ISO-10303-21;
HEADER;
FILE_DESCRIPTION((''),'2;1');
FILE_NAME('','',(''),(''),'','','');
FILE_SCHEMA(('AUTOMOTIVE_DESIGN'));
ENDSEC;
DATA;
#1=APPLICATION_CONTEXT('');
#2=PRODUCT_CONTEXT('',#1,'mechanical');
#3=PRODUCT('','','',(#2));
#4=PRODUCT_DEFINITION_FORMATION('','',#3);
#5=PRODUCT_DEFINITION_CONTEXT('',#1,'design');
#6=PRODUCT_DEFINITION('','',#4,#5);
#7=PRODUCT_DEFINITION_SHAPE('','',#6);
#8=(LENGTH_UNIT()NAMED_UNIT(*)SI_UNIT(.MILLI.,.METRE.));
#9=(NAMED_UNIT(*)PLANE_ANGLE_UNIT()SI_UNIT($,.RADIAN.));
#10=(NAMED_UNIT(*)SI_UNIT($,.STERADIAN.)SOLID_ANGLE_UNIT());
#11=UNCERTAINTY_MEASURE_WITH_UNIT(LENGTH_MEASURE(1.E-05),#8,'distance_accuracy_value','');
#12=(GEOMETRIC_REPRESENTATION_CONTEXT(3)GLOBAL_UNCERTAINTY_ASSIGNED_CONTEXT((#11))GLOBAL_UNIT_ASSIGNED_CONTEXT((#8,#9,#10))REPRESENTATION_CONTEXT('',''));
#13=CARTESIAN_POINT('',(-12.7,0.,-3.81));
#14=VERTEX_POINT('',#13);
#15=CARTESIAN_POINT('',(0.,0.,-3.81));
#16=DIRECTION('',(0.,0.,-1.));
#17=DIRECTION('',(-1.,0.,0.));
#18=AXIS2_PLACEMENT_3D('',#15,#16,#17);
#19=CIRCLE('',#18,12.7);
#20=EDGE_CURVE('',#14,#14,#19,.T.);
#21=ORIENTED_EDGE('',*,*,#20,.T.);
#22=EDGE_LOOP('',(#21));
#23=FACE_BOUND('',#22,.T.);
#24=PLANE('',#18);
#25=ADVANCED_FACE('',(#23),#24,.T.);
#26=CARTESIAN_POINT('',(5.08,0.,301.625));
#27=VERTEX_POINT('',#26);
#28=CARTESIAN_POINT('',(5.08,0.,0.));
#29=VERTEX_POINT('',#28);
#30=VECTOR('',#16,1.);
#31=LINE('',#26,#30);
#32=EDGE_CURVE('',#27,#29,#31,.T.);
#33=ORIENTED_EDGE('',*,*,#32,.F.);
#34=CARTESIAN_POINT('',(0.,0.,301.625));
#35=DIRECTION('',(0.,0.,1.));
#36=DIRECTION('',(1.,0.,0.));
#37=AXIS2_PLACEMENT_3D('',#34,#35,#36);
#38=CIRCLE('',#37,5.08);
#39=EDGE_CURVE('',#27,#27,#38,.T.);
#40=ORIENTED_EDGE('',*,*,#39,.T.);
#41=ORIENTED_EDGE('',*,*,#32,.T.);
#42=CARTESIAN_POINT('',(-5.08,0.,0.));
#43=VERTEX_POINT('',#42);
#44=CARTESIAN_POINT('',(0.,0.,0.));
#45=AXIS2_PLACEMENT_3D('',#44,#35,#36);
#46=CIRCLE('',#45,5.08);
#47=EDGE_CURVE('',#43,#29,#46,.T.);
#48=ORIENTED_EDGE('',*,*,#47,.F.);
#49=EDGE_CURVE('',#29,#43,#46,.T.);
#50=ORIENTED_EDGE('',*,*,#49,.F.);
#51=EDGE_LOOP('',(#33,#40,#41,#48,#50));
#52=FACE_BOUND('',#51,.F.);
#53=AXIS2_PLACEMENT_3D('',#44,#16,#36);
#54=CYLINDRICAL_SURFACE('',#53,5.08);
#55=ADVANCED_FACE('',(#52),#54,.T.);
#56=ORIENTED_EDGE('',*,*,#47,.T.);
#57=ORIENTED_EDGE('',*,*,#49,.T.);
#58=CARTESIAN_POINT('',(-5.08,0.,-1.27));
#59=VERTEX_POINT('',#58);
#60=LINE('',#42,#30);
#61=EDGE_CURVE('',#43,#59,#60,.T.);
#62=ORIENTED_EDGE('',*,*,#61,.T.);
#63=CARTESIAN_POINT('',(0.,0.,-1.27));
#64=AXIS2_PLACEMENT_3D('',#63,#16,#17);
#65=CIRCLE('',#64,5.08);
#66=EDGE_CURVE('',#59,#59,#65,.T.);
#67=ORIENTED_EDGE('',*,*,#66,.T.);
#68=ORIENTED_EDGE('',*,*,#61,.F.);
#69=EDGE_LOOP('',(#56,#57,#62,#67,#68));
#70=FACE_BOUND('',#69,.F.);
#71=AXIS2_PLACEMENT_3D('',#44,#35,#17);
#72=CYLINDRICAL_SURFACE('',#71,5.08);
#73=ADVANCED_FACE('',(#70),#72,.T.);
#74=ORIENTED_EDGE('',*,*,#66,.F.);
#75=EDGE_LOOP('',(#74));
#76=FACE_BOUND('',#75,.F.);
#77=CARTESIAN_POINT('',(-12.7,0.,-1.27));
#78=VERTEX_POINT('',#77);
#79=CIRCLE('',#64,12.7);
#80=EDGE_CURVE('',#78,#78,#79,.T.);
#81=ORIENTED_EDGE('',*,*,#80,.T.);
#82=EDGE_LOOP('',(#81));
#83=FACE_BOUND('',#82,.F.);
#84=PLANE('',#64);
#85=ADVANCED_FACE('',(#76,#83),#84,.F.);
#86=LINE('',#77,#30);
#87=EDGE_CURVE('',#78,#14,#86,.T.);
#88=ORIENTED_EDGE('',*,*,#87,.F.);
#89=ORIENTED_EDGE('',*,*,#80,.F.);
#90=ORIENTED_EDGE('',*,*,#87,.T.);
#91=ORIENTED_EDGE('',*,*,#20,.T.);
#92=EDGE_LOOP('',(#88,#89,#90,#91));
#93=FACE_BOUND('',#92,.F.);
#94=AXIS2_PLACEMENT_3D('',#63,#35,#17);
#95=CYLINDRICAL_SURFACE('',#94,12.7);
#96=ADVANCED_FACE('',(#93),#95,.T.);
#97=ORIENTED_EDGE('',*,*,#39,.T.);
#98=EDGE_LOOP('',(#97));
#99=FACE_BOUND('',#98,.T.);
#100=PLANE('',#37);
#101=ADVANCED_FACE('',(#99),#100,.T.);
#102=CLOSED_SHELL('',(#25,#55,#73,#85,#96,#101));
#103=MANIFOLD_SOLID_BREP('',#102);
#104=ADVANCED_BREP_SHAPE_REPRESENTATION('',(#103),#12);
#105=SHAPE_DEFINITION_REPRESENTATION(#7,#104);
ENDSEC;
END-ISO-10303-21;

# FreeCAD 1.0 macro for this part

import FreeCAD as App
import Part
import Sketcher
Q = App.Units.Quantity

doc = App.newDocument("Part")
body = doc.addObject("PartDesign::Body", "Body")

# Sketch on XY plane
sketch1 = body.newObject("Sketcher::SketchObject", "Sketch")
sketch1.AttachmentSupport = (doc.getObject("XY_Plane"), [""])
sketch1.MapMode = "FlatFace"
sketch1.addGeometry(Part.Circle(App.Vector(0, 0, 0), App.Vector(0, 0, 1), 5.08), False)
sketch1.addConstraint(Sketcher.Constraint("Coincident", 0, 3, -1, 1))
sketch1.addConstraint(Sketcher.Constraint("Diameter", 0, Q("0.4 in")))
pad1 = body.newObject("PartDesign::Pad", "Pad")
pad1.Profile = sketch1
pad1.Length = Q("11.75 in")

# Sketch on XY plane
sketch2 = body.newObject("Sketcher::SketchObject", "Sketch001")
sketch2.AttachmentSupport = (doc.getObject("XY_Plane"), [""])
sketch2.MapMode = "FlatFace"
sketch2.AttachmentOffset = App.Placement(App.Vector(0, 0, 11.75 * 25.4), App.Rotation())
sketch2.addGeometry(Part.Circle(App.Vector(0, 0, 0), App.Vector(0, 0, 1), 5.08), False)
sketch2.addConstraint(Sketcher.Constraint("Coincident", 0, 3, -1, 1))
sketch2.addConstraint(Sketcher.Constraint("Diameter", 0, Q("0.4 in")))
pad2 = body.newObject("PartDesign::Pad", "Pad001")
pad2.Profile = sketch2
pad2.Length = Q("0.125 in")

# Sketch on XY plane
sketch3 = body.newObject("Sketcher::SketchObject", "Sketch002")
sketch3.AttachmentSupport = (doc.getObject("XY_Plane"), [""])
sketch3.MapMode = "FlatFace"
sketch3.addGeometry(Part.Circle(App.Vector(0, 0, 0), App.Vector(0, 0, 1), 5.08), False)
sketch3.addConstraint(Sketcher.Constraint("Coincident", 0, 3, -1, 1))
sketch3.addConstraint(Sketcher.Constraint("Diameter", 0, Q("0.4 in")))
pad3 = body.newObject("PartDesign::Pad", "Pad002")
pad3.Profile = sketch3
pad3.Length = Q("0.05 in")
pad3.Reversed = True

# Sketch on XY plane
sketch4 = body.newObject("Sketcher::SketchObject", "Sketch003")
sketch4.AttachmentSupport = (doc.getObject("XY_Plane"), [""])
sketch4.MapMode = "FlatFace"
sketch4.AttachmentOffset = App.Placement(App.Vector(0, 0, -0.05 * 25.4), App.Rotation())
sketch4.addGeometry(Part.Circle(App.Vector(0, 0, 0), App.Vector(0, 0, 1), 12.7), False)
sketch4.addConstraint(Sketcher.Constraint("Coincident", 0, 3, -1, 1))
sketch4.addConstraint(Sketcher.Constraint("Diameter", 0, Q("1 in")))
pad4 = body.newObject("PartDesign::Pad", "Pad003")
pad4.Profile = sketch4
pad4.Length = Q("0.1 in")
pad4.Reversed = True

doc.recompute()
